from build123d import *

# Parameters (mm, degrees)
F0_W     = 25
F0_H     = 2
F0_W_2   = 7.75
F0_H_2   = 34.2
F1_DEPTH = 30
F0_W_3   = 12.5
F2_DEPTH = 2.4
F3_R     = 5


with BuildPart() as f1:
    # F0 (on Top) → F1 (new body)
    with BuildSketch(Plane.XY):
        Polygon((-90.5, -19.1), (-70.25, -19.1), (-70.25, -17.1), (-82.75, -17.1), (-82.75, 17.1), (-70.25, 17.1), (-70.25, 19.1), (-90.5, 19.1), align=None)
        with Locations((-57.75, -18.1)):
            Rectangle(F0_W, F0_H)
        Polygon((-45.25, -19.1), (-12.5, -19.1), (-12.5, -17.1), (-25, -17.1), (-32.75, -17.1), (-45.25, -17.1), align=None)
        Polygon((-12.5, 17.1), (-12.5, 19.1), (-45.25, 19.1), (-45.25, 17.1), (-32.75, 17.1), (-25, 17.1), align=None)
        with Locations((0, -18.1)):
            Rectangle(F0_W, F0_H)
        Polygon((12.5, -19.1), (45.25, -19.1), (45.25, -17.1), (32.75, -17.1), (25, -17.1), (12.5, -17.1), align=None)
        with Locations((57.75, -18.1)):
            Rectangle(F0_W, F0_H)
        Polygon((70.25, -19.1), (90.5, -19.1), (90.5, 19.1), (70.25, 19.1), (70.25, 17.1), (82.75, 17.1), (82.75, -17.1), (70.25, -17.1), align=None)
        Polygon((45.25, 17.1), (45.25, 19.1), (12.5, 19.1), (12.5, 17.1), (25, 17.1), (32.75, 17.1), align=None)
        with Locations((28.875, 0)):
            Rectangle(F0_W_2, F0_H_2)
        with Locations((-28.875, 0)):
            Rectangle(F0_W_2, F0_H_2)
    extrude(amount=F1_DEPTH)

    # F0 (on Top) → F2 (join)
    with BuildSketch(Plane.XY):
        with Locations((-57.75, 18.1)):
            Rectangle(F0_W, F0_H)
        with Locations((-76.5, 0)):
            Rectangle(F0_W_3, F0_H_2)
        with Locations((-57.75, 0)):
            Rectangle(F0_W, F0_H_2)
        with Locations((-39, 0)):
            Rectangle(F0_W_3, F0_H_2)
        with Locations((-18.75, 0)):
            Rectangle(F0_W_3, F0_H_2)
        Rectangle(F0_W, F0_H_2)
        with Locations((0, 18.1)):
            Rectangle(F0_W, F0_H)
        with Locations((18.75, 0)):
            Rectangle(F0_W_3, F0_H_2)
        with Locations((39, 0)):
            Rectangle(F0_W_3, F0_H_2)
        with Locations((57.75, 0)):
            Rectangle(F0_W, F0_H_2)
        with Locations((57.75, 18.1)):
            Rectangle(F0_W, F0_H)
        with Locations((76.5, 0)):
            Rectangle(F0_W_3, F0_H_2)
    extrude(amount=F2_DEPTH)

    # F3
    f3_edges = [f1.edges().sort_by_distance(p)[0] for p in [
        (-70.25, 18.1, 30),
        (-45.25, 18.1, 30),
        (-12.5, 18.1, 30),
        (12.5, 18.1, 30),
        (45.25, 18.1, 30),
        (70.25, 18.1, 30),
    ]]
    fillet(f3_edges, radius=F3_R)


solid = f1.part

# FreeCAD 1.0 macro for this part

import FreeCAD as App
import Part
import Sketcher
from FreeCAD import Vector


def edges_at(feature, points):
    """Names of the edges that pass closest to the given points."""
    edges = feature.Shape.Edges
    near = lambda p: min(range(len(edges)), key=lambda i: edges[i].distToShape(Part.Vertex(*p))[0])
    return sorted({f"Edge{near(p) + 1}" for p in points})

doc = App.newDocument("Part")
body = doc.addObject("PartDesign::Body", "Body")

sketch1 = body.newObject("Sketcher::SketchObject", "Sketch")
sketch1.AttachmentSupport = (doc.getObject("XY_Plane"), [""])
sketch1.MapMode = "FlatFace"
sketch1.addGeometry([
    Part.LineSegment(Vector(-90.5, -19.1, 0), Vector(90.5, -19.1, 0)),
    Part.LineSegment(Vector(90.5, -19.1, 0), Vector(90.5, 19.1, 0)),
    Part.LineSegment(Vector(90.5, 19.1, 0), Vector(70.2, 19.1, 0)),
    Part.LineSegment(Vector(70.2, 19.1, 0), Vector(70.2, 17.1, 0)),
    Part.LineSegment(Vector(70.2, 17.1, 0), Vector(82.8, 17.1, 0)),
    Part.LineSegment(Vector(82.8, 17.1, 0), Vector(82.8, -17.1, 0)),
    Part.LineSegment(Vector(82.8, -17.1, 0), Vector(32.8, -17.1, 0)),
    Part.LineSegment(Vector(32.8, -17.1, 0), Vector(32.8, 17.1, 0)),
    Part.LineSegment(Vector(32.8, 17.1, 0), Vector(45.2, 17.1, 0)),
    Part.LineSegment(Vector(45.2, 17.1, 0), Vector(45.2, 19.1, 0)),
    Part.LineSegment(Vector(45.2, 19.1, 0), Vector(12.5, 19.1, 0)),
    Part.LineSegment(Vector(12.5, 19.1, 0), Vector(12.5, 17.1, 0)),
    Part.LineSegment(Vector(12.5, 17.1, 0), Vector(25, 17.1, 0)),
    Part.LineSegment(Vector(25, 17.1, 0), Vector(25, -17.1, 0)),
    Part.LineSegment(Vector(25, -17.1, 0), Vector(-25, -17.1, 0)),
    Part.LineSegment(Vector(-25, -17.1, 0), Vector(-25, 17.1, 0)),
    Part.LineSegment(Vector(-25, 17.1, 0), Vector(-12.5, 17.1, 0)),
    Part.LineSegment(Vector(-12.5, 17.1, 0), Vector(-12.5, 19.1, 0)),
    Part.LineSegment(Vector(-12.5, 19.1, 0), Vector(-45.2, 19.1, 0)),
    Part.LineSegment(Vector(-45.2, 19.1, 0), Vector(-45.2, 17.1, 0)),
    Part.LineSegment(Vector(-45.2, 17.1, 0), Vector(-32.8, 17.1, 0)),
    Part.LineSegment(Vector(-32.8, 17.1, 0), Vector(-32.8, -17.1, 0)),
    Part.LineSegment(Vector(-32.8, -17.1, 0), Vector(-82.8, -17.1, 0)),
    Part.LineSegment(Vector(-82.8, -17.1, 0), Vector(-82.8, 17.1, 0)),
    Part.LineSegment(Vector(-82.8, 17.1, 0), Vector(-70.2, 17.1, 0)),
    Part.LineSegment(Vector(-70.2, 17.1, 0), Vector(-70.2, 19.1, 0)),
    Part.LineSegment(Vector(-70.2, 19.1, 0), Vector(-90.5, 19.1, 0)),
    Part.LineSegment(Vector(-90.5, 19.1, 0), Vector(-90.5, -19.1, 0)),
], False)
sketch1.addConstraint([
    Sketcher.Constraint("Coincident", 0, 2, 1, 1),
    Sketcher.Constraint("Coincident", 1, 2, 2, 1),
    Sketcher.Constraint("Coincident", 2, 2, 3, 1),
    Sketcher.Constraint("Coincident", 3, 2, 4, 1),
    Sketcher.Constraint("Coincident", 4, 2, 5, 1),
    Sketcher.Constraint("Coincident", 5, 2, 6, 1),
    Sketcher.Constraint("Coincident", 6, 2, 7, 1),
    Sketcher.Constraint("Coincident", 7, 2, 8, 1),
    Sketcher.Constraint("Coincident", 8, 2, 9, 1),
    Sketcher.Constraint("Coincident", 9, 2, 10, 1),
    Sketcher.Constraint("Coincident", 10, 2, 11, 1),
    Sketcher.Constraint("Coincident", 11, 2, 12, 1),
    Sketcher.Constraint("Coincident", 12, 2, 13, 1),
    Sketcher.Constraint("Coincident", 13, 2, 14, 1),
    Sketcher.Constraint("Coincident", 14, 2, 15, 1),
    Sketcher.Constraint("Coincident", 15, 2, 16, 1),
    Sketcher.Constraint("Coincident", 16, 2, 17, 1),
    Sketcher.Constraint("Coincident", 17, 2, 18, 1),
    Sketcher.Constraint("Coincident", 18, 2, 19, 1),
    Sketcher.Constraint("Coincident", 19, 2, 20, 1),
    Sketcher.Constraint("Coincident", 20, 2, 21, 1),
    Sketcher.Constraint("Coincident", 21, 2, 22, 1),
    Sketcher.Constraint("Coincident", 22, 2, 23, 1),
    Sketcher.Constraint("Coincident", 23, 2, 24, 1),
    Sketcher.Constraint("Coincident", 24, 2, 25, 1),
    Sketcher.Constraint("Coincident", 25, 2, 26, 1),
    Sketcher.Constraint("Coincident", 26, 2, 27, 1),
    Sketcher.Constraint("Coincident", 27, 2, 0, 1),
    Sketcher.Constraint("Horizontal", 0),
    Sketcher.Constraint("Vertical", 1),
    Sketcher.Constraint("Horizontal", 2),
    Sketcher.Constraint("Vertical", 3),
    Sketcher.Constraint("Horizontal", 4),
    Sketcher.Constraint("Vertical", 5),
    Sketcher.Constraint("Horizontal", 6),
    Sketcher.Constraint("Vertical", 7),
    Sketcher.Constraint("Horizontal", 8),
    Sketcher.Constraint("Vertical", 9),
    Sketcher.Constraint("Horizontal", 10),
    Sketcher.Constraint("Vertical", 11),
    Sketcher.Constraint("Horizontal", 12),
    Sketcher.Constraint("Vertical", 13),
    Sketcher.Constraint("Horizontal", 14),
    Sketcher.Constraint("Vertical", 15),
    Sketcher.Constraint("Horizontal", 16),
    Sketcher.Constraint("Vertical", 17),
    Sketcher.Constraint("Horizontal", 18),
    Sketcher.Constraint("Vertical", 19),
    Sketcher.Constraint("Horizontal", 20),
    Sketcher.Constraint("Vertical", 21),
    Sketcher.Constraint("Horizontal", 22),
    Sketcher.Constraint("Vertical", 23),
    Sketcher.Constraint("Horizontal", 24),
    Sketcher.Constraint("Vertical", 25),
    Sketcher.Constraint("Horizontal", 26),
    Sketcher.Constraint("Vertical", 27),
    Sketcher.Constraint("Symmetric", 12, 2, 14, 2, -1, 1),
    Sketcher.Constraint("Symmetric", 6, 2, 20, 2, -1, 1),
    Sketcher.Constraint("Symmetric", 4, 2, 22, 2, -1, 1),
    Sketcher.Constraint("Symmetric", 0, 2, 26, 2, -1, 1),
    Sketcher.Constraint("Symmetric", 11, 2, 16, 2, -2),
    Sketcher.Constraint("Symmetric", 9, 2, 18, 2, -2),
    Sketcher.Constraint("Symmetric", 3, 2, 24, 2, -2),
    Sketcher.Constraint("Horizontal", 4, 2, 7, 2),
    Sketcher.Constraint("Horizontal", 2, 2, 9, 2),
    Sketcher.Constraint("Horizontal", 8, 2, 11, 2),
    Sketcher.Constraint("Horizontal", 6, 2, 13, 2),
    Sketcher.Constraint("Horizontal", 18, 2, 25, 2),
    Sketcher.Constraint("Equal", 4, 8),
    Sketcher.Constraint("Equal", 8, 12),
    Sketcher.Constraint("Equal", 6, 14),
    Sketcher.Constraint("DistanceX", 0, 1, 0, 2, 181.0),
    Sketcher.Constraint("DistanceX", 6, 2, 6, 1, 50.0),
    Sketcher.Constraint("DistanceY", 3, 2, 3, 1, 2.0),
    Sketcher.Constraint("DistanceX", 4, 1, 4, 2, 12.5),
    Sketcher.Constraint("DistanceY", 1, 1, 1, 2, 38.2),
    Sketcher.Constraint("DistanceX", 2, 2, 2, 1, 20.25),
])
pad1 = body.newObject("PartDesign::Pad", "Pad")
pad1.Profile = sketch1
pad1.Length = 30

sketch2 = body.newObject("Sketcher::SketchObject", "Sketch001")
sketch2.AttachmentSupport = (doc.getObject("XY_Plane"), [""])
sketch2.MapMode = "FlatFace"
sketch2.addGeometry([
    Part.LineSegment(Vector(-70.2, 19.1, 0), Vector(-70.2, 17.1, 0)),
    Part.LineSegment(Vector(-70.2, 17.1, 0), Vector(-82.8, 17.1, 0)),
    Part.LineSegment(Vector(-82.8, 17.1, 0), Vector(-82.8, -17.1, 0)),
    Part.LineSegment(Vector(-82.8, -17.1, 0), Vector(-32.8, -17.1, 0)),
    Part.LineSegment(Vector(-32.8, -17.1, 0), Vector(-32.8, 17.1, 0)),
    Part.LineSegment(Vector(-32.8, 17.1, 0), Vector(-45.2, 17.1, 0)),
    Part.LineSegment(Vector(-45.2, 17.1, 0), Vector(-45.2, 19.1, 0)),
    Part.LineSegment(Vector(-45.2, 19.1, 0), Vector(-70.2, 19.1, 0)),
    Part.LineSegment(Vector(-25, 17.1, 0), Vector(-25, -17.1, 0)),
    Part.LineSegment(Vector(-25, -17.1, 0), Vector(25, -17.1, 0)),
    Part.LineSegment(Vector(25, -17.1, 0), Vector(25, 17.1, 0)),
    Part.LineSegment(Vector(25, 17.1, 0), Vector(12.5, 17.1, 0)),
    Part.LineSegment(Vector(12.5, 17.1, 0), Vector(12.5, 19.1, 0)),
    Part.LineSegment(Vector(12.5, 19.1, 0), Vector(-12.5, 19.1, 0)),
    Part.LineSegment(Vector(-12.5, 19.1, 0), Vector(-12.5, 17.1, 0)),
    Part.LineSegment(Vector(-12.5, 17.1, 0), Vector(-25, 17.1, 0)),
    Part.LineSegment(Vector(32.8, 17.1, 0), Vector(32.8, -17.1, 0)),
    Part.LineSegment(Vector(32.8, -17.1, 0), Vector(82.8, -17.1, 0)),
    Part.LineSegment(Vector(82.8, -17.1, 0), Vector(82.8, 17.1, 0)),
    Part.LineSegment(Vector(82.8, 17.1, 0), Vector(70.2, 17.1, 0)),
    Part.LineSegment(Vector(70.2, 17.1, 0), Vector(70.2, 19.1, 0)),
    Part.LineSegment(Vector(70.2, 19.1, 0), Vector(45.2, 19.1, 0)),
    Part.LineSegment(Vector(45.2, 19.1, 0), Vector(45.2, 17.1, 0)),
    Part.LineSegment(Vector(45.2, 17.1, 0), Vector(32.8, 17.1, 0)),
], False)
sketch2.addConstraint([
    Sketcher.Constraint("Coincident", 0, 2, 1, 1),
    Sketcher.Constraint("Coincident", 1, 2, 2, 1),
    Sketcher.Constraint("Coincident", 2, 2, 3, 1),
    Sketcher.Constraint("Coincident", 3, 2, 4, 1),
    Sketcher.Constraint("Coincident", 4, 2, 5, 1),
    Sketcher.Constraint("Coincident", 5, 2, 6, 1),
    Sketcher.Constraint("Coincident", 6, 2, 7, 1),
    Sketcher.Constraint("Coincident", 7, 2, 0, 1),
    Sketcher.Constraint("Coincident", 8, 2, 9, 1),
    Sketcher.Constraint("Coincident", 9, 2, 10, 1),
    Sketcher.Constraint("Coincident", 10, 2, 11, 1),
    Sketcher.Constraint("Coincident", 11, 2, 12, 1),
    Sketcher.Constraint("Coincident", 12, 2, 13, 1),
    Sketcher.Constraint("Coincident", 13, 2, 14, 1),
    Sketcher.Constraint("Coincident", 14, 2, 15, 1),
    Sketcher.Constraint("Coincident", 15, 2, 8, 1),
    Sketcher.Constraint("Coincident", 16, 2, 17, 1),
    Sketcher.Constraint("Coincident", 17, 2, 18, 1),
    Sketcher.Constraint("Coincident", 18, 2, 19, 1),
    Sketcher.Constraint("Coincident", 19, 2, 20, 1),
    Sketcher.Constraint("Coincident", 20, 2, 21, 1),
    Sketcher.Constraint("Coincident", 21, 2, 22, 1),
    Sketcher.Constraint("Coincident", 22, 2, 23, 1),
    Sketcher.Constraint("Coincident", 23, 2, 16, 1),
    Sketcher.Constraint("Vertical", 0),
    Sketcher.Constraint("Horizontal", 1),
    Sketcher.Constraint("Vertical", 2),
    Sketcher.Constraint("Horizontal", 3),
    Sketcher.Constraint("Vertical", 4),
    Sketcher.Constraint("Horizontal", 5),
    Sketcher.Constraint("Vertical", 6),
    Sketcher.Constraint("Horizontal", 7),
    Sketcher.Constraint("Vertical", 8),
    Sketcher.Constraint("Horizontal", 9),
    Sketcher.Constraint("Vertical", 10),
    Sketcher.Constraint("Horizontal", 11),
    Sketcher.Constraint("Vertical", 12),
    Sketcher.Constraint("Horizontal", 13),
    Sketcher.Constraint("Vertical", 14),
    Sketcher.Constraint("Horizontal", 15),
    Sketcher.Constraint("Vertical", 16),
    Sketcher.Constraint("Horizontal", 17),
    Sketcher.Constraint("Vertical", 18),
    Sketcher.Constraint("Horizontal", 19),
    Sketcher.Constraint("Vertical", 20),
    Sketcher.Constraint("Horizontal", 21),
    Sketcher.Constraint("Vertical", 22),
    Sketcher.Constraint("Horizontal", 23),
    Sketcher.Constraint("Symmetric", 8, 2, 10, 2, -1, 1),
    Sketcher.Constraint("Symmetric", 4, 2, 16, 2, -1, 1),
    Sketcher.Constraint("Symmetric", 1, 2, 17, 2, -1, 1),
    Sketcher.Constraint("Symmetric", 11, 2, 14, 2, -2),
    Sketcher.Constraint("Symmetric", 0, 2, 19, 2, -2),
    Sketcher.Constraint("Symmetric", 6, 2, 21, 2, -2),
    Sketcher.Constraint("Horizontal", 3, 2, 8, 2),
    Sketcher.Constraint("Horizontal", 5, 2, 10, 2),
    Sketcher.Constraint("Horizontal", 7, 2, 12, 2),
    Sketcher.Constraint("Horizontal", 19, 2, 22, 2),
    Sketcher.Constraint("Equal", 1, 5),
    Sketcher.Constraint("Equal", 3, 9),
    Sketcher.Constraint("Equal", 5, 11),
    Sketcher.Constraint("DistanceX", 3, 1, 3, 2, 50.0),
    Sketcher.Constraint("DistanceX", 7, 2, 7, 1, 25.0),
    Sketcher.Constraint("DistanceY", 0, 2, 0, 1, 2.0),
    Sketcher.Constraint("DistanceY", 2, 2, 2, 1, 34.2),
    Sketcher.Constraint("DistanceX", 0, 2, -1, 1, 70.25),
])
pad2 = body.newObject("PartDesign::Pad", "Pad001")
pad2.Profile = sketch2
pad2.Length = 2.4
doc.recompute()

fillet = body.newObject("PartDesign::Fillet", "Fillet")
fillet.Base = (pad2, edges_at(pad2, [
    (-70.25, 18.1, 30),
    (-45.25, 18.1, 30),
    (-12.5, 18.1, 30),
    (12.5, 18.1, 30),
    (45.25, 18.1, 30),
    (70.25, 18.1, 30),
]))
fillet.Radius = 5

doc.recompute()
